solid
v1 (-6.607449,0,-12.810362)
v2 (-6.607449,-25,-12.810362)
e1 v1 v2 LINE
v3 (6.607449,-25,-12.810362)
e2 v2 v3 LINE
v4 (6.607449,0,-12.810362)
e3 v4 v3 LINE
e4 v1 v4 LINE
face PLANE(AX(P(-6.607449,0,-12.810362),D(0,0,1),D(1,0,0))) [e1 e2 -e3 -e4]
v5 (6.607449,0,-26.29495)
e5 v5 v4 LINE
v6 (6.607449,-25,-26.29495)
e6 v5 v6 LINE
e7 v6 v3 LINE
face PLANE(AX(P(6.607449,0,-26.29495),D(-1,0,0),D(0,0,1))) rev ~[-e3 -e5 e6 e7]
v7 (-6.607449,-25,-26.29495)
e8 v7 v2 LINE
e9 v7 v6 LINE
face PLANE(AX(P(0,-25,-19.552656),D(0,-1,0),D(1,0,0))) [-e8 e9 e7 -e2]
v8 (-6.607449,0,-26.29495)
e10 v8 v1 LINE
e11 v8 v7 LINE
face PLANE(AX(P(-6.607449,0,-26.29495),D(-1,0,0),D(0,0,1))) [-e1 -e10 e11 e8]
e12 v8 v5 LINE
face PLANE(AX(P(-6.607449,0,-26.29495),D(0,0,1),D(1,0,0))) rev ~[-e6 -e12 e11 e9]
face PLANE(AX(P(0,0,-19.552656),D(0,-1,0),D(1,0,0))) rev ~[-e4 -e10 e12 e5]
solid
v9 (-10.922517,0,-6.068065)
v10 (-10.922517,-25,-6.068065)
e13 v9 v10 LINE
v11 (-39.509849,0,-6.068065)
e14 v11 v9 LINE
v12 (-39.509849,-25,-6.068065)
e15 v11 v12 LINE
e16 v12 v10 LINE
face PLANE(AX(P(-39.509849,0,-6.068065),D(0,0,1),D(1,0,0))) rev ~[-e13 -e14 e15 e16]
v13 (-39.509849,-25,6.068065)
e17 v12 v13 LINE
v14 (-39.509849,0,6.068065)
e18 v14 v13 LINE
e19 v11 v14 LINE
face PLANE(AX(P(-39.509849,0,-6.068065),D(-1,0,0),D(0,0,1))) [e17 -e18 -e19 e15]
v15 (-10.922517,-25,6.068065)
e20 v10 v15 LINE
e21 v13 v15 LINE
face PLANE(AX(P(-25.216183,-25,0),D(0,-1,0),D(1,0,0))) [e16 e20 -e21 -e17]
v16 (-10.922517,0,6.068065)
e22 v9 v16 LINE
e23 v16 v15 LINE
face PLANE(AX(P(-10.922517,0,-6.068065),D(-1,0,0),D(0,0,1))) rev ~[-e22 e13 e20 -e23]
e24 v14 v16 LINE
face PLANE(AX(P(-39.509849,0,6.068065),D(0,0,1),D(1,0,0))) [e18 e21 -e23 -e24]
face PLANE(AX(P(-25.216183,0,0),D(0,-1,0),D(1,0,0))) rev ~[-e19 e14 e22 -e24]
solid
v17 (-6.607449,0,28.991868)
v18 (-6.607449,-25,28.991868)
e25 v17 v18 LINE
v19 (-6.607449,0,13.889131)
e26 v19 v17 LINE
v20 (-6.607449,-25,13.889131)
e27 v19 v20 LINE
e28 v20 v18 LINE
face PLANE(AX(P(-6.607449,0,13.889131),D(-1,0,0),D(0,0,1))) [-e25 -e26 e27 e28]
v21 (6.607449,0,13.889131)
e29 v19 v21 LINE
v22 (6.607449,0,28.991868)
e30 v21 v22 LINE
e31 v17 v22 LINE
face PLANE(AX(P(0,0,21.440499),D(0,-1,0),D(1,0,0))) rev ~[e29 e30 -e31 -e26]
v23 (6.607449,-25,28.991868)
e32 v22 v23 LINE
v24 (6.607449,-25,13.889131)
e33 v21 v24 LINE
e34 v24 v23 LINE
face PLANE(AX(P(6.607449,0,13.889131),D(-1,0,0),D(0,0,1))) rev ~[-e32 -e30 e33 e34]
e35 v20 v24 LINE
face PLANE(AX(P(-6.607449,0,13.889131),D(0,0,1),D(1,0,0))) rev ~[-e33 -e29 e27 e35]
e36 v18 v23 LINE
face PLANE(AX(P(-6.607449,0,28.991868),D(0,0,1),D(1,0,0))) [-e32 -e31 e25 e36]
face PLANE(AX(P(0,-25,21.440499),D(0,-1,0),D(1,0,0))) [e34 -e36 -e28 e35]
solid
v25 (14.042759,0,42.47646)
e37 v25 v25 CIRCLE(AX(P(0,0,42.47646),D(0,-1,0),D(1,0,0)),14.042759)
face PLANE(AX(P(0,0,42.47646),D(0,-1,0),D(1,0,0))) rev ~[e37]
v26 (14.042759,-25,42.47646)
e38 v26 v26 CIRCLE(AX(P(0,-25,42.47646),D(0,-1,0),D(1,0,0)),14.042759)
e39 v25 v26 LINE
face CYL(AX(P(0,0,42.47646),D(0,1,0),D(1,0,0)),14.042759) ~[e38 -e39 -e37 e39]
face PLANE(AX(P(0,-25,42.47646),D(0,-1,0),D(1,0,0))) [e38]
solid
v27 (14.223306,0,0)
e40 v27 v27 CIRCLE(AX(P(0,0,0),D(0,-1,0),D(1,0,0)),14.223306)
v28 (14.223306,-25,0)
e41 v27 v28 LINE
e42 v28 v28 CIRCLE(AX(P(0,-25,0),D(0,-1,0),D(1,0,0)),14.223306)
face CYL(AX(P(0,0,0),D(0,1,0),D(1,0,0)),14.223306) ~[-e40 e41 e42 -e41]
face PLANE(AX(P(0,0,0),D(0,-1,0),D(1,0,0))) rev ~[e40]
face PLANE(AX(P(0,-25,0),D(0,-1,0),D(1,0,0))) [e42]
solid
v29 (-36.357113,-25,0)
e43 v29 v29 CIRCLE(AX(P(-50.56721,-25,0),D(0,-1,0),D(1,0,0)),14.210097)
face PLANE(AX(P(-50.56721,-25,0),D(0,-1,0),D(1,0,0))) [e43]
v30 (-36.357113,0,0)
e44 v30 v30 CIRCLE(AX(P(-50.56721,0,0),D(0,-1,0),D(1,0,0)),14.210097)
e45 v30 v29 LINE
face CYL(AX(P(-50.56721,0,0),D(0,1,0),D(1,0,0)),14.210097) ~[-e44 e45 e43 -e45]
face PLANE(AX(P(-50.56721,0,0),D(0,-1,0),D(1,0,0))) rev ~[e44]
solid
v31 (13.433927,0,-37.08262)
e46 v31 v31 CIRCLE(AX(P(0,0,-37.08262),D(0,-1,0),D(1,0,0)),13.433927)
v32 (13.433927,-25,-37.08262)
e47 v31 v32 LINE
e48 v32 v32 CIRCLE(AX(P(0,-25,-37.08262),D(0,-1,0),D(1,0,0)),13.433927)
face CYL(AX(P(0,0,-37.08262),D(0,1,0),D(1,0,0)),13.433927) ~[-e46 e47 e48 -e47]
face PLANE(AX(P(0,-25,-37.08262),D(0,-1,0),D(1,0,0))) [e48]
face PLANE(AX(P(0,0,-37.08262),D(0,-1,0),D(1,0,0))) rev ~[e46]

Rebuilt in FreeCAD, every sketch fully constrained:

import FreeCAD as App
import Part
import Sketcher
from FreeCAD import Vector

doc = App.newDocument("Part")
params = doc.addObject("Spreadsheet::Sheet", "Params")
for row, (alias, value) in enumerate([
    ("pad1_length", "25 mm"),
    ("pad2_length", "25 mm"),
    ("pad3_length", "25 mm"),
    ("pad4_length", "25 mm"),
    ("pad5_length", "25 mm"),
], start=1):
    params.set(f"A{row}", alias)
    params.set(f"B{row}", "=" + value)
    params.setAlias(f"B{row}", alias)

body = doc.addObject("PartDesign::Body", "Body")

sketch1 = body.newObject("Sketcher::SketchObject", "Sketch")
sketch1.AttachmentSupport = (doc.getObject("XZ_Plane"), [""])
sketch1.MapMode = "FlatFace"
sketch1.addGeometry(Part.Circle(Vector(0, 0, 0), Vector(0, 0, 1), 14), False)
sketch1.addConstraint(Sketcher.Constraint("Coincident", 0, 3, -1, 1))
sketch1.addConstraint(Sketcher.Constraint("Diameter", 0, 28.446612))
pad1 = body.newObject("PartDesign::Pad", "Pad")
pad1.Profile = sketch1
pad1.setExpression("Length", "Params.pad1_length")
body2 = doc.addObject("PartDesign::Body", "Body001")

sketch2 = body2.newObject("Sketcher::SketchObject", "Sketch001")
sketch2.AttachmentSupport = (doc.getObject("XZ_Plane001"), [""])
sketch2.MapMode = "FlatFace"
sketch2.addGeometry(Part.Circle(Vector(0, 42, 0), Vector(0, 0, 1), 14), False)
sketch2.addConstraint(Sketcher.Constraint("PointOnObject", 0, 3, -2))
sketch2.addConstraint(Sketcher.Constraint("Diameter", 0, 28.085518))
sketch2.addConstraint(Sketcher.Constraint("DistanceY", -1, 1, 0, 3, 42.47646))
pad2 = body2.newObject("PartDesign::Pad", "Pad001")
pad2.Profile = sketch2
pad2.setExpression("Length", "Params.pad2_length")
body3 = doc.addObject("PartDesign::Body", "Body002")

sketch3 = body3.newObject("Sketcher::SketchObject", "Sketch002")
sketch3.AttachmentSupport = (doc.getObject("XZ_Plane002"), [""])
sketch3.MapMode = "FlatFace"
sketch3.addGeometry(Part.Circle(Vector(0, -37, 0), Vector(0, 0, 1), 13), False)
sketch3.addConstraint(Sketcher.Constraint("PointOnObject", 0, 3, -2))
sketch3.addConstraint(Sketcher.Constraint("Diameter", 0, 26.867854))
sketch3.addConstraint(Sketcher.Constraint("DistanceY", 0, 3, -1, 1, 37.08262))
pad3 = body3.newObject("PartDesign::Pad", "Pad002")
pad3.Profile = sketch3
pad3.setExpression("Length", "Params.pad3_length")
body4 = doc.addObject("PartDesign::Body", "Body003")

sketch4 = body4.newObject("Sketcher::SketchObject", "Sketch003")
sketch4.AttachmentSupport = (doc.getObject("XZ_Plane003"), [""])
sketch4.MapMode = "FlatFace"
sketch4.addGeometry(Part.Circle(Vector(-51, 0, 0), Vector(0, 0, 1), 14), False)
sketch4.addConstraint(Sketcher.Constraint("PointOnObject", 0, 3, -1))
sketch4.addConstraint(Sketcher.Constraint("Diameter", 0, 28.420194))
sketch4.addConstraint(Sketcher.Constraint("DistanceX", 0, 3, -1, 1, 50.56721))
pad4 = body4.newObject("PartDesign::Pad", "Pad003")
pad4.Profile = sketch4
pad4.setExpression("Length", "Params.pad4_length")
body5 = doc.addObject("PartDesign::Body", "Body004")
body5.AllowCompound = True

sketch5 = body5.newObject("Sketcher::SketchObject", "Sketch004")
sketch5.AttachmentSupport = (doc.getObject("XZ_Plane004"), [""])
sketch5.MapMode = "FlatFace"
sketch5.addGeometry(Part.LineSegment(Vector(-7, 29, 0), Vector(-7, 14, 0)), False)
sketch5.addGeometry(Part.LineSegment(Vector(-7, 14, 0), Vector(7, 14, 0)), False)
sketch5.addGeometry(Part.LineSegment(Vector(7, 14, 0), Vector(7, 29, 0)), False)
sketch5.addGeometry(Part.LineSegment(Vector(7, 29, 0), Vector(-7, 29, 0)), False)
sketch5.addGeometry(Part.LineSegment(Vector(-7, -13, 0), Vector(-7, -26, 0)), False)
sketch5.addGeometry(Part.LineSegment(Vector(-7, -26, 0), Vector(7, -26, 0)), False)
sketch5.addGeometry(Part.LineSegment(Vector(7, -26, 0), Vector(7, -13, 0)), False)
sketch5.addGeometry(Part.LineSegment(Vector(7, -13, 0), Vector(-7, -13, 0)), False)
sketch5.addGeometry(Part.LineSegment(Vector(-40, 6, 0), Vector(-40, -6, 0)), False)
sketch5.addGeometry(Part.LineSegment(Vector(-40, -6, 0), Vector(-11, -6, 0)), False)
sketch5.addGeometry(Part.LineSegment(Vector(-11, -6, 0), Vector(-11, 6, 0)), False)
sketch5.addGeometry(Part.LineSegment(Vector(-11, 6, 0), Vector(-40, 6, 0)), False)
sketch5.addConstraint(Sketcher.Constraint("Coincident", 0, 2, 1, 1))
sketch5.addConstraint(Sketcher.Constraint("Coincident", 1, 2, 2, 1))
sketch5.addConstraint(Sketcher.Constraint("Coincident", 2, 2, 3, 1))
sketch5.addConstraint(Sketcher.Constraint("Coincident", 3, 2, 0, 1))
sketch5.addConstraint(Sketcher.Constraint("Coincident", 4, 2, 5, 1))
sketch5.addConstraint(Sketcher.Constraint("Coincident", 5, 2, 6, 1))
sketch5.addConstraint(Sketcher.Constraint("Coincident", 6, 2, 7, 1))
sketch5.addConstraint(Sketcher.Constraint("Coincident", 7, 2, 4, 1))
sketch5.addConstraint(Sketcher.Constraint("Coincident", 8, 2, 9, 1))
sketch5.addConstraint(Sketcher.Constraint("Coincident", 9, 2, 10, 1))
sketch5.addConstraint(Sketcher.Constraint("Coincident", 10, 2, 11, 1))
sketch5.addConstraint(Sketcher.Constraint("Coincident", 11, 2, 8, 1))
sketch5.addConstraint(Sketcher.Constraint("Vertical", 0))
sketch5.addConstraint(Sketcher.Constraint("Horizontal", 1))
sketch5.addConstraint(Sketcher.Constraint("Vertical", 2))
sketch5.addConstraint(Sketcher.Constraint("Horizontal", 3))
sketch5.addConstraint(Sketcher.Constraint("Vertical", 4))
sketch5.addConstraint(Sketcher.Constraint("Horizontal", 5))
sketch5.addConstraint(Sketcher.Constraint("Vertical", 6))
sketch5.addConstraint(Sketcher.Constraint("Horizontal", 7))
sketch5.addConstraint(Sketcher.Constraint("Vertical", 8))
sketch5.addConstraint(Sketcher.Constraint("Horizontal", 9))
sketch5.addConstraint(Sketcher.Constraint("Vertical", 10))
sketch5.addConstraint(Sketcher.Constraint("Horizontal", 11))
sketch5.addConstraint(Sketcher.Constraint("Vertical", 3, 2, 4, 2))
sketch5.addConstraint(Sketcher.Constraint("Vertical", 2, 2, 5, 2))
sketch5.addConstraint(Sketcher.Constraint("DistanceY", 4, 2, 4, 1, 13.484589))
sketch5.addConstraint(Sketcher.Constraint("DistanceY", 8, 2, 8, 1, 12.13613))
sketch5.addConstraint(Sketcher.Constraint("DistanceX", 8, 2, 7, 2, 32.9024))
sketch5.addConstraint(Sketcher.Constraint("DistanceX", 8, 2, 6, 2, 46.117298))
sketch5.addConstraint(Sketcher.Constraint("DistanceX", 9, 1, 9, 2, 28.587332))
sketch5.addConstraint(Sketcher.Constraint("DistanceY", 0, 2, 0, 1, 15.102737))
sketch5.addConstraint(Sketcher.Constraint("DistanceX", 0, 2, -1, 1, 6.607449))
sketch5.addConstraint(Sketcher.Constraint("DistanceY", -1, 1, 0, 2, 13.889131))
sketch5.addConstraint(Sketcher.Constraint("DistanceY", 4, 2, -1, 1, 26.29495))
sketch5.addConstraint(Sketcher.Constraint("DistanceY", 8, 2, -1, 1, 6.068065))
pad5 = body5.newObject("PartDesign::Pad", "Pad004")
pad5.Profile = sketch5
pad5.setExpression("Length", "Params.pad5_length")

doc.recompute()
